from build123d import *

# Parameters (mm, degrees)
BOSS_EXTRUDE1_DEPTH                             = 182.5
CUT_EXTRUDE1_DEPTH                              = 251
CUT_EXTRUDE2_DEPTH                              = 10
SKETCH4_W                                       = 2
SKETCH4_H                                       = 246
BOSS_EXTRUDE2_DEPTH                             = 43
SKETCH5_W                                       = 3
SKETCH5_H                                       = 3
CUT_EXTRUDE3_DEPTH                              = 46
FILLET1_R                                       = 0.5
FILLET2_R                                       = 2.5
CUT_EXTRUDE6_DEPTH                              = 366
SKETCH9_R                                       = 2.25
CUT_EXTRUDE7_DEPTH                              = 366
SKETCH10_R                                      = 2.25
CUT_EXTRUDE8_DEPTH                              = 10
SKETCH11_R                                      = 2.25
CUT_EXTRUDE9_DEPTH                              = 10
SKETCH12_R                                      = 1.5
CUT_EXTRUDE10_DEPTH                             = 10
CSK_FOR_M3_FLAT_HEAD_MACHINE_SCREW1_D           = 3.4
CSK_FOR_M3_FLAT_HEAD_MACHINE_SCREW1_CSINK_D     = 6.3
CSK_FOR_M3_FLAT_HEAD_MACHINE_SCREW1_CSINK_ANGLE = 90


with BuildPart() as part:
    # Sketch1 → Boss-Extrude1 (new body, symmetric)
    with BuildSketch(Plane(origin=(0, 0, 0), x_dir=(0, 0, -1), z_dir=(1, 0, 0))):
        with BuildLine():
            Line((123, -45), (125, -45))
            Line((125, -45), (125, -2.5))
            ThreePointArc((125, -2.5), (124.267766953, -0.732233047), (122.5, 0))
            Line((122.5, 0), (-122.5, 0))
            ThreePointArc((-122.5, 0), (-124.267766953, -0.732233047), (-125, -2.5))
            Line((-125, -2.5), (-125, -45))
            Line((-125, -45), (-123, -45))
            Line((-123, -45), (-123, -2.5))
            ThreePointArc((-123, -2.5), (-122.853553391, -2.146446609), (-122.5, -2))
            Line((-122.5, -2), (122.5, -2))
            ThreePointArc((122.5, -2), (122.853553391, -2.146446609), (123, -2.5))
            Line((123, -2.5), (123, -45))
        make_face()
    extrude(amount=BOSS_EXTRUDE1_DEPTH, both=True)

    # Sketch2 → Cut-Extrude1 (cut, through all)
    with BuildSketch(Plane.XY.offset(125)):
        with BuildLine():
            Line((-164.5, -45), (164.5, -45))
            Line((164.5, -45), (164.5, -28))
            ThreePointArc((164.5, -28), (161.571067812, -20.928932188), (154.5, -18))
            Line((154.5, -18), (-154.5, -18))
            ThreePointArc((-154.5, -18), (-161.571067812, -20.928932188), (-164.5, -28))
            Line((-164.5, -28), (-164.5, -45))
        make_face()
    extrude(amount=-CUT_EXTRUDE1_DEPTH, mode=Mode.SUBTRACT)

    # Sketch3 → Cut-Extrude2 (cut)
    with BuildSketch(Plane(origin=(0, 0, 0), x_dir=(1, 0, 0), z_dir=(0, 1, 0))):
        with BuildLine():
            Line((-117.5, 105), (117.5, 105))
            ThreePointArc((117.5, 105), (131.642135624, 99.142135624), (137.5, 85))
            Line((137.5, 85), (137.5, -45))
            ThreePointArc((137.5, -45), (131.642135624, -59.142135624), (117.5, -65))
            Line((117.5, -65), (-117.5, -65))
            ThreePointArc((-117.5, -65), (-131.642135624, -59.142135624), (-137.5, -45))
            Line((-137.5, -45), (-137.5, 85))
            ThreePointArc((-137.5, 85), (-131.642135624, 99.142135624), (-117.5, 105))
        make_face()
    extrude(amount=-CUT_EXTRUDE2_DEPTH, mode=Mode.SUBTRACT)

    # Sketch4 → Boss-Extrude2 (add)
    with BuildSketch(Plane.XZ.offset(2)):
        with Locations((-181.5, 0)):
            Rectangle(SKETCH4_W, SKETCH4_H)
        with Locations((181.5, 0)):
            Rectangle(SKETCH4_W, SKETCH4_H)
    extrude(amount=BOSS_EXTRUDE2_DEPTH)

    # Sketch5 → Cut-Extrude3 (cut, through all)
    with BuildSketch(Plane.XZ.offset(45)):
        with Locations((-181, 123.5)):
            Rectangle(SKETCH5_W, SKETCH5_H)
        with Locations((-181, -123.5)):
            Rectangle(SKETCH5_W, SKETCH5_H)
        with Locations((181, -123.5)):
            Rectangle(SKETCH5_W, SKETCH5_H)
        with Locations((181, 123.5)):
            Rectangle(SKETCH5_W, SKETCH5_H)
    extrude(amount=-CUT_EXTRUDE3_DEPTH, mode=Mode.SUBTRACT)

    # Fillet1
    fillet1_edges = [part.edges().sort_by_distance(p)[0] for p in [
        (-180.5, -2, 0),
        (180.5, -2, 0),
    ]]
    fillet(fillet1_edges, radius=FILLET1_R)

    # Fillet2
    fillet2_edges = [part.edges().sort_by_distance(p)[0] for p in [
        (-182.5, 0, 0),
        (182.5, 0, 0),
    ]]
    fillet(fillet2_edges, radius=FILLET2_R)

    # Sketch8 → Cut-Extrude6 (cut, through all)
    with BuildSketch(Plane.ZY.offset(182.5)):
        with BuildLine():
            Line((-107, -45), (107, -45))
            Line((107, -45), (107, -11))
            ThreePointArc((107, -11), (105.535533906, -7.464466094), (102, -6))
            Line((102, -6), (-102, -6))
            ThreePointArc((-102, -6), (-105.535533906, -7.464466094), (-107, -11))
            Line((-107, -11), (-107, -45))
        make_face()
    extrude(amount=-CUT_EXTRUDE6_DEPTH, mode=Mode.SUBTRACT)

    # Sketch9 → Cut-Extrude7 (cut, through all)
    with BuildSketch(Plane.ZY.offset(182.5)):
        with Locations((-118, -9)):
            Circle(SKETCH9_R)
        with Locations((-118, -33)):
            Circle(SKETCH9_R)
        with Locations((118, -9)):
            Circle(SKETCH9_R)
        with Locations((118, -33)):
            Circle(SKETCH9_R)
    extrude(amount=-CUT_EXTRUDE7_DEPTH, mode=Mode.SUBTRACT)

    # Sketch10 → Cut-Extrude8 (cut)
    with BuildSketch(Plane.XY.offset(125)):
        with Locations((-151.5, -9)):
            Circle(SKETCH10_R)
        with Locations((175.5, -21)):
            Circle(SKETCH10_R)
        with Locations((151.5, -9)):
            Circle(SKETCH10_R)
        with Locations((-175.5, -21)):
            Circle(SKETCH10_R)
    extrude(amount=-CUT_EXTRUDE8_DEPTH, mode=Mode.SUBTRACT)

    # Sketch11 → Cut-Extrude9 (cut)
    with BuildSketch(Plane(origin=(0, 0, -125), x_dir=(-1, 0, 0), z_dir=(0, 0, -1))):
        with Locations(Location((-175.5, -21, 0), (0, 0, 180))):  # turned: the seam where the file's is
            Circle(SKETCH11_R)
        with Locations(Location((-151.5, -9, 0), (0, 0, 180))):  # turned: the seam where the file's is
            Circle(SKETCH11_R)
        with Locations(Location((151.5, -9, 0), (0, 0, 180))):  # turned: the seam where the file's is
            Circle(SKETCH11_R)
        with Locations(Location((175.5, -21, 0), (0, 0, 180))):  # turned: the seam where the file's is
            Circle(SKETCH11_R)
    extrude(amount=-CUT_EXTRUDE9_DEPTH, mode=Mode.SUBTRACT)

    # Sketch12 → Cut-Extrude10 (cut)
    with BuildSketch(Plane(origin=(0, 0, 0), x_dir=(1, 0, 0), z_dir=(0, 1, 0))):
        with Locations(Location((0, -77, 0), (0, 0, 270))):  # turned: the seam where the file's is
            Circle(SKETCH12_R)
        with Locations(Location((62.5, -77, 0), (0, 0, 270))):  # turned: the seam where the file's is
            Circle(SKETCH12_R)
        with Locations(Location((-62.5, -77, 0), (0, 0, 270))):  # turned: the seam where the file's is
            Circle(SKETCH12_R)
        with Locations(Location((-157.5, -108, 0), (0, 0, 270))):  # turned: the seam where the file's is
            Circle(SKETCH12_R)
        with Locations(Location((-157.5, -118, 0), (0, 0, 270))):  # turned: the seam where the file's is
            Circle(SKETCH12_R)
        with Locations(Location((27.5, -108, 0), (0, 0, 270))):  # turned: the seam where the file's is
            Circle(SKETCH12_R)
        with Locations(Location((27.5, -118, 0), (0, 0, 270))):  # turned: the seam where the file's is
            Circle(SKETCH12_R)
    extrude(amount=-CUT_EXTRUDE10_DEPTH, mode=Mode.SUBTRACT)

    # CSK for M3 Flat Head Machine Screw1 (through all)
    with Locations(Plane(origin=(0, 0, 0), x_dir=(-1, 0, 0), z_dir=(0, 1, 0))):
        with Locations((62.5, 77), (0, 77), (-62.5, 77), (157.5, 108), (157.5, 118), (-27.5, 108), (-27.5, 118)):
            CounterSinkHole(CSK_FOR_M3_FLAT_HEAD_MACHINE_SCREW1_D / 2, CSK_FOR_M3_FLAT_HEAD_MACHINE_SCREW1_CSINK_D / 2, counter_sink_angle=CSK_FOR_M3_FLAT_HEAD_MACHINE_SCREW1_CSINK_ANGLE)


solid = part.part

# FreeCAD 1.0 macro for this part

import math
import FreeCAD as App
import Part
import Sketcher
Q = App.Units.Quantity


def edges_at(feature, points):
    """Names of the edges that pass closest to the given points."""
    edges = feature.Shape.Edges
    near = lambda p: min(range(len(edges)), key=lambda i: edges[i].distToShape(Part.Vertex(*p))[0])
    return sorted({f"Edge{near(p) + 1}" for p in points})


def add_polygon(sketch, points):
    """Adds a closed chain of lines whose ends are joined by coincident constraints."""
    first, n = sketch.GeometryCount, len(points)
    for a, b in zip(points, points[1:] + points[:1]):
        sketch.addGeometry(Part.LineSegment(App.Vector(*a, 0), App.Vector(*b, 0)), False)
    for i in range(n):
        sketch.addConstraint(Sketcher.Constraint("Coincident", first + i, 2, first + (i + 1) % n, 1))

doc = App.newDocument("Part")
params = doc.addObject("Spreadsheet::Sheet", "Params")
for row, (alias, value) in enumerate([
    ("sketch1_radius", "2.5 mm"),
    ("sketch1_radius2", "0.5 mm"),
    ("sketch1_height", "245 mm"),
    ("sketch1_width", "42.5 mm"),
    ("pad1_length", "365 mm"),
    ("sketch2_radius", "10 mm"),
    ("sketch2_width", "329 mm"),
    ("sketch2_height", "17 mm"),
    ("sketch3_radius", "20 mm"),
    ("sketch3_width", "235 mm"),
    ("sketch3_height", "130 mm"),
    ("pocket2_length", "10 mm"),
    ("sketch4_width", "2 mm"),
    ("sketch4_height", "246 mm"),
    ("pad2_length", "43 mm"),
    ("sketch5_width", "3 mm"),
    ("fillet_radius", "0.5 mm"),
    ("fillet2_radius", "2.5 mm"),
    ("sketch6_radius", "5 mm"),
    ("sketch6_width", "34 mm"),
    ("sketch6_height", "214 mm"),
    ("sketch7_diameter", "4.5 mm"),
    ("sketch8_diameter", "4.5 mm"),
    ("pocket6_length", "10 mm"),
    ("sketch9_diameter", "4.5 mm"),
    ("pocket7_length", "10 mm"),
    ("sketch10_diameter", "3 mm"),
    ("pocket8_length", "10 mm"),
    ("sketch11_diameter", "3.4 mm"),
    ("hole_diameter", "3.4 mm"),
    ("hole_csink_diameter", "6.3 mm"),
], start=1):
    params.set(f"A{row}", alias)
    params.set(f"B{row}", "=" + value)
    params.setAlias(f"B{row}", alias)

body = doc.addObject("PartDesign::Body", "Body")

# Sketch on YZ plane
sketch1 = body.newObject("Sketcher::SketchObject", "Sketch")
sketch1.AttachmentSupport = (doc.getObject("YZ_Plane"), [""])
sketch1.MapMode = "FlatFace"
sketch1.addGeometry([
    Part.LineSegment(App.Vector(-45, -123, 0), App.Vector(-45, -125, 0)),  # 0
    Part.LineSegment(App.Vector(-45, -125, 0), App.Vector(-2.5, -125, 0)),  # 1
    Part.ArcOfCircle(Part.Circle(App.Vector(-2.5, -122.5, 0), App.Vector(0, 0, 1), 2.5), math.radians(-90), math.radians(0)),  # 2
    Part.LineSegment(App.Vector(0, -122.5, 0), App.Vector(0, 122.5, 0)),  # 3
    Part.ArcOfCircle(Part.Circle(App.Vector(-2.5, 122.5, 0), App.Vector(0, 0, 1), 2.5), math.radians(0), math.radians(90)),  # 4
    Part.LineSegment(App.Vector(-2.5, 125, 0), App.Vector(-45, 125, 0)),  # 5
    Part.LineSegment(App.Vector(-45, 125, 0), App.Vector(-45, 123, 0)),  # 6
    Part.LineSegment(App.Vector(-45, 123, 0), App.Vector(-2.5, 123, 0)),  # 7
    Part.ArcOfCircle(Part.Circle(App.Vector(-2.5, 122.5, 0), App.Vector(0, 0, 1), 0.5), math.radians(0), math.radians(90)),  # 8
    Part.LineSegment(App.Vector(-2, 122.5, 0), App.Vector(-2, -122.5, 0)),  # 9
    Part.ArcOfCircle(Part.Circle(App.Vector(-2.5, -122.5, 0), App.Vector(0, 0, 1), 0.5), math.radians(-90), math.radians(0)),  # 10
    Part.LineSegment(App.Vector(-2.5, -123, 0), App.Vector(-45, -123, 0)),  # 11
], False)
sketch1.addConstraint([
    Sketcher.Constraint("Coincident", 0, 2, 1, 1),
    Sketcher.Constraint("Tangent", 1, 2, 2, 1),
    Sketcher.Constraint("Tangent", 2, 2, 3, 1),
    Sketcher.Constraint("Tangent", 3, 2, 4, 1),
    Sketcher.Constraint("Tangent", 4, 2, 5, 1),
    Sketcher.Constraint("Coincident", 5, 2, 6, 1),
    Sketcher.Constraint("Coincident", 6, 2, 7, 1),
    Sketcher.Constraint("Tangent", 7, 2, 8, 2),
    Sketcher.Constraint("Tangent", 8, 1, 9, 1),
    Sketcher.Constraint("Tangent", 9, 2, 10, 2),
    Sketcher.Constraint("Tangent", 10, 1, 11, 1),
    Sketcher.Constraint("Coincident", 11, 2, 0, 1),
    Sketcher.Constraint("Vertical", 0),
    Sketcher.Constraint("Horizontal", 1),
    Sketcher.Constraint("Vertical", 3),
    Sketcher.Constraint("Horizontal", 5),
    Sketcher.Constraint("Vertical", 6),
    Sketcher.Constraint("Horizontal", 7),
    Sketcher.Constraint("Vertical", 9),
    Sketcher.Constraint("Horizontal", 11),
    Sketcher.Constraint("Coincident", 8, 3, 4, 3),
    Sketcher.Constraint("Coincident", 10, 3, 2, 3),
    Sketcher.Constraint("Equal", 2, 4),
    Sketcher.Constraint("Symmetric", 2, 2, 3, 2, -1, 1),
    Sketcher.Constraint("Vertical", 0, 2, 5, 2),
    Sketcher.Constraint("Radius", 2, Q("2.5 mm")),
    Sketcher.Constraint("Radius", 8, Q("0.5 mm")),
    Sketcher.Constraint("DistanceY", 3, 1, 3, 2, Q("245 mm")),
    Sketcher.Constraint("DistanceX", 1, 1, 1, 2, Q("42.5 mm")),
])
sketch1.setExpression("Constraints[25]", "Params.sketch1_radius")
sketch1.setExpression("Constraints[26]", "Params.sketch1_radius2")
sketch1.setExpression("Constraints[27]", "Params.sketch1_height")
sketch1.setExpression("Constraints[28]", "Params.sketch1_width")
pad1 = body.newObject("PartDesign::Pad", "Pad")
pad1.Profile = sketch1
pad1.setExpression("Length", "Params.pad1_length")
pad1.Midplane = True

# Sketch on XY plane
sketch2 = body.newObject("Sketcher::SketchObject", "Sketch001")
sketch2.AttachmentSupport = (doc.getObject("XY_Plane"), [""])
sketch2.MapMode = "FlatFace"
sketch2.AttachmentOffset = App.Placement(App.Vector(0, 0, 125), App.Rotation())
sketch2.addGeometry([
    Part.LineSegment(App.Vector(-164, -45, 0), App.Vector(164, -45, 0)),  # 0
    Part.LineSegment(App.Vector(164, -45, 0), App.Vector(164, -28, 0)),  # 1
    Part.ArcOfCircle(Part.Circle(App.Vector(154, -28, 0), App.Vector(0, 0, 1), 10), math.radians(0), math.radians(90)),  # 2
    Part.LineSegment(App.Vector(154, -18, 0), App.Vector(-154, -18, 0)),  # 3
    Part.ArcOfCircle(Part.Circle(App.Vector(-154, -28, 0), App.Vector(0, 0, 1), 10), math.radians(90), math.radians(180)),  # 4
    Part.LineSegment(App.Vector(-164, -28, 0), App.Vector(-164, -45, 0)),  # 5
], False)
sketch2.addConstraint([
    Sketcher.Constraint("Coincident", 0, 2, 1, 1),
    Sketcher.Constraint("Tangent", 1, 2, 2, 1),
    Sketcher.Constraint("Tangent", 2, 2, 3, 1),
    Sketcher.Constraint("Tangent", 3, 2, 4, 1),
    Sketcher.Constraint("Tangent", 4, 2, 5, 1),
    Sketcher.Constraint("Coincident", 5, 2, 0, 1),
    Sketcher.Constraint("Horizontal", 0),
    Sketcher.Constraint("Vertical", 1),
    Sketcher.Constraint("Horizontal", 3),
    Sketcher.Constraint("Vertical", 5),
    Sketcher.Constraint("Equal", 2, 4),
    Sketcher.Constraint("Radius", 2, Q("10 mm")),
    Sketcher.Constraint("DistanceX", 0, 1, 0, 2, Q("329 mm")),
    Sketcher.Constraint("DistanceY", 1, 1, 1, 2, Q("17 mm")),
    Sketcher.Constraint("DistanceY", 2, 3, -1, 1, Q("28 mm")),
    Sketcher.Constraint("DistanceX", -1, 1, 2, 3, Q("154.5 mm")),
])
sketch2.setExpression("Constraints[11]", "Params.sketch2_radius")
sketch2.setExpression("Constraints[12]", "Params.sketch2_width")
sketch2.setExpression("Constraints[13]", "Params.sketch2_height")
pocket1 = body.newObject("PartDesign::Pocket", "Pocket")
pocket1.Profile = sketch2
pocket1.Type = "ThroughAll"

# Sketch on XZ plane
sketch3 = body.newObject("Sketcher::SketchObject", "Sketch002")
sketch3.AttachmentSupport = (doc.getObject("XZ_Plane"), [""])
sketch3.MapMode = "FlatFace"
sketch3.addGeometry([
    Part.LineSegment(App.Vector(118, -105, 0), App.Vector(-118, -105, 0)),  # 0
    Part.ArcOfCircle(Part.Circle(App.Vector(-118, -85, 0), App.Vector(0, 0, 1), 20), math.radians(180), math.radians(270)),  # 1
    Part.LineSegment(App.Vector(-138, -85, 0), App.Vector(-138, 45, 0)),  # 2
    Part.ArcOfCircle(Part.Circle(App.Vector(-118, 45, 0), App.Vector(0, 0, 1), 20), math.radians(90), math.radians(180)),  # 3
    Part.LineSegment(App.Vector(-118, 65, 0), App.Vector(118, 65, 0)),  # 4
    Part.ArcOfCircle(Part.Circle(App.Vector(118, 45, 0), App.Vector(0, 0, 1), 20), math.radians(0), math.radians(90)),  # 5
    Part.LineSegment(App.Vector(138, 45, 0), App.Vector(138, -85, 0)),  # 6
    Part.ArcOfCircle(Part.Circle(App.Vector(118, -85, 0), App.Vector(0, 0, 1), 20), math.radians(-90), math.radians(0)),  # 7
], False)
sketch3.addConstraint([
    Sketcher.Constraint("Tangent", 0, 2, 1, 2),
    Sketcher.Constraint("Tangent", 1, 1, 2, 1),
    Sketcher.Constraint("Tangent", 2, 2, 3, 2),
    Sketcher.Constraint("Tangent", 3, 1, 4, 1),
    Sketcher.Constraint("Tangent", 4, 2, 5, 2),
    Sketcher.Constraint("Tangent", 5, 1, 6, 1),
    Sketcher.Constraint("Tangent", 6, 2, 7, 2),
    Sketcher.Constraint("Tangent", 7, 1, 0, 1),
    Sketcher.Constraint("Horizontal", 0),
    Sketcher.Constraint("Vertical", 2),
    Sketcher.Constraint("Horizontal", 4),
    Sketcher.Constraint("Vertical", 6),
    Sketcher.Constraint("Equal", 1, 3),
    Sketcher.Constraint("Equal", 3, 5),
    Sketcher.Constraint("Equal", 5, 7),
    Sketcher.Constraint("Radius", 1, Q("20 mm")),
    Sketcher.Constraint("DistanceX", 0, 2, 0, 1, Q("235 mm")),
    Sketcher.Constraint("DistanceY", 2, 1, 2, 2, Q("130 mm")),
    Sketcher.Constraint("DistanceY", 1, 3, -1, 1, Q("85 mm")),
    Sketcher.Constraint("DistanceX", 1, 3, -1, 1, Q("117.5 mm")),
])
sketch3.setExpression("Constraints[15]", "Params.sketch3_radius")
sketch3.setExpression("Constraints[16]", "Params.sketch3_width")
sketch3.setExpression("Constraints[17]", "Params.sketch3_height")
pocket2 = body.newObject("PartDesign::Pocket", "Pocket001")
pocket2.Profile = sketch3
pocket2.setExpression("Length", "Params.pocket2_length")
pocket2.Reversed = True

# Sketch on XZ plane
sketch4 = body.newObject("Sketcher::SketchObject", "Sketch003")
sketch4.AttachmentSupport = (doc.getObject("XZ_Plane"), [""])
sketch4.MapMode = "FlatFace"
sketch4.AttachmentOffset = App.Placement(App.Vector(0, 0, 2), App.Rotation())
add_polygon(sketch4, [(-182.5, 123), (-182.5, -123), (-180.5, -123), (-180.5, 123)])  # lines 0-3
add_polygon(sketch4, [(180.5, 123), (180.5, -123), (182.5, -123), (182.5, 123)])  # lines 4-7
sketch4.addConstraint([
    Sketcher.Constraint("Vertical", 0),
    Sketcher.Constraint("Horizontal", 1),
    Sketcher.Constraint("Vertical", 2),
    Sketcher.Constraint("Horizontal", 3),
    Sketcher.Constraint("Vertical", 4),
    Sketcher.Constraint("Horizontal", 5),
    Sketcher.Constraint("Vertical", 6),
    Sketcher.Constraint("Horizontal", 7),
    Sketcher.Constraint("Symmetric", 2, 2, 4, 2, -1, 1),
    Sketcher.Constraint("Symmetric", 0, 2, 6, 2, -1, 1),
    Sketcher.Constraint("Horizontal", 1, 2, 4, 2),
    Sketcher.Constraint("DistanceX", 1, 1, 1, 2, Q("2 mm")),
    Sketcher.Constraint("DistanceY", 0, 2, 0, 1, Q("246 mm")),
    Sketcher.Constraint("DistanceX", 1, 2, 4, 2, Q("361 mm")),
])
sketch4.setExpression("Constraints[19]", "Params.sketch4_width")
sketch4.setExpression("Constraints[20]", "Params.sketch4_height")
pad2 = body.newObject("PartDesign::Pad", "Pad001")
pad2.Profile = sketch4
pad2.setExpression("Length", "Params.pad2_length")

# Sketch on XZ plane
sketch5 = body.newObject("Sketcher::SketchObject", "Sketch004")
sketch5.AttachmentSupport = (doc.getObject("XZ_Plane"), [""])
sketch5.MapMode = "FlatFace"
sketch5.AttachmentOffset = App.Placement(App.Vector(0, 0, 45), App.Rotation())
add_polygon(sketch5, [(-182.5, 125), (-182.5, 122), (-179.5, 122), (-179.5, 125)])  # lines 0-3
add_polygon(sketch5, [(-182.5, -122), (-182.5, -125), (-179.5, -125), (-179.5, -122)])  # lines 4-7
add_polygon(sketch5, [(179.5, -122), (179.5, -125), (182.5, -125), (182.5, -122)])  # lines 8-11
add_polygon(sketch5, [(179.5, 125), (179.5, 122), (182.5, 122), (182.5, 125)])  # lines 12-15
sketch5.addConstraint([
    Sketcher.Constraint("Vertical", 0),
    Sketcher.Constraint("Horizontal", 1),
    Sketcher.Constraint("Vertical", 2),
    Sketcher.Constraint("Horizontal", 3),
    Sketcher.Constraint("Vertical", 4),
    Sketcher.Constraint("Horizontal", 5),
    Sketcher.Constraint("Vertical", 6),
    Sketcher.Constraint("Horizontal", 7),
    Sketcher.Constraint("Vertical", 8),
    Sketcher.Constraint("Horizontal", 9),
    Sketcher.Constraint("Vertical", 10),
    Sketcher.Constraint("Horizontal", 11),
    Sketcher.Constraint("Vertical", 12),
    Sketcher.Constraint("Horizontal", 13),
    Sketcher.Constraint("Vertical", 14),
    Sketcher.Constraint("Horizontal", 15),
    Sketcher.Constraint("Symmetric", 2, 2, 8, 2, -1, 1),
    Sketcher.Constraint("Symmetric", 0, 2, 10, 2, -1, 1),
    Sketcher.Constraint("Symmetric", 6, 2, 12, 2, -1, 1),
    Sketcher.Constraint("Symmetric", 4, 2, 14, 2, -1, 1),
    Sketcher.Constraint("Symmetric", 5, 2, 8, 2, -2),
    Sketcher.Constraint("Symmetric", 7, 2, 10, 2, -2),
    Sketcher.Constraint("Equal", 15, 0),
    Sketcher.Constraint("DistanceX", 1, 1, 1, 2, Q("3 mm")),
    Sketcher.Constraint("DistanceY", -1, 1, 0, 2, Q("122 mm")),
    Sketcher.Constraint("DistanceX", 5, 2, 8, 2, Q("359 mm")),
])
sketch5.setExpression("Constraints[39]", "Params.sketch5_width")
pocket3 = body.newObject("PartDesign::Pocket", "Pocket002")
pocket3.Profile = sketch5
pocket3.Type = "ThroughAll"
doc.recompute()

fillet = body.newObject("PartDesign::Fillet", "Fillet")
fillet.Base = (pocket3, edges_at(pocket3, [(-180.5, -2, 0), (180.5, -2, 0)]))
fillet.setExpression("Radius", "Params.fillet_radius")
doc.recompute()

fillet2 = body.newObject("PartDesign::Fillet", "Fillet001")
fillet2.Base = (fillet, edges_at(fillet, [(-182.5, 0, 0), (182.5, 0, 0)]))
fillet2.setExpression("Radius", "Params.fillet2_radius")

# Sketch on YZ plane
sketch6 = body.newObject("Sketcher::SketchObject", "Sketch005")
sketch6.AttachmentSupport = (doc.getObject("YZ_Plane"), [""])
sketch6.MapMode = "FlatFace"
sketch6.AttachmentOffset = App.Placement(App.Vector(0, 0, -182.5), App.Rotation())
sketch6.addGeometry([
    Part.LineSegment(App.Vector(-45, -107, 0), App.Vector(-45, 107, 0)),  # 0
    Part.LineSegment(App.Vector(-45, 107, 0), App.Vector(-11, 107, 0)),  # 1
    Part.ArcOfCircle(Part.Circle(App.Vector(-11, 102, 0), App.Vector(0, 0, 1), 5), math.radians(0), math.radians(90)),  # 2
    Part.LineSegment(App.Vector(-6, 102, 0), App.Vector(-6, -102, 0)),  # 3
    Part.ArcOfCircle(Part.Circle(App.Vector(-11, -102, 0), App.Vector(0, 0, 1), 5), math.radians(-90), math.radians(0)),  # 4
    Part.LineSegment(App.Vector(-11, -107, 0), App.Vector(-45, -107, 0)),  # 5
], False)
sketch6.addConstraint([
    Sketcher.Constraint("Coincident", 0, 2, 1, 1),
    Sketcher.Constraint("Tangent", 1, 2, 2, 2),
    Sketcher.Constraint("Tangent", 2, 1, 3, 1),
    Sketcher.Constraint("Tangent", 3, 2, 4, 2),
    Sketcher.Constraint("Tangent", 4, 1, 5, 1),
    Sketcher.Constraint("Coincident", 5, 2, 0, 1),
    Sketcher.Constraint("Vertical", 0),
    Sketcher.Constraint("Horizontal", 1),
    Sketcher.Constraint("Vertical", 3),
    Sketcher.Constraint("Horizontal", 5),
    Sketcher.Constraint("Equal", 2, 4),
    Sketcher.Constraint("Radius", 2, Q("5 mm")),
    Sketcher.Constraint("DistanceX", 1, 1, 1, 2, Q("34 mm")),
    Sketcher.Constraint("DistanceY", 0, 1, 0, 2, Q("214 mm")),
    Sketcher.Constraint("DistanceX", 2, 3, -1, 1, Q("11 mm")),
    Sketcher.Constraint("DistanceY", -1, 1, 2, 3, Q("102 mm")),
])
sketch6.setExpression("Constraints[11]", "Params.sketch6_radius")
sketch6.setExpression("Constraints[12]", "Params.sketch6_width")
sketch6.setExpression("Constraints[13]", "Params.sketch6_height")
pocket4 = body.newObject("PartDesign::Pocket", "Pocket003")
pocket4.Profile = sketch6
pocket4.Type = "ThroughAll"
pocket4.Reversed = True

# Sketch on YZ plane
sketch7 = body.newObject("Sketcher::SketchObject", "Sketch006")
sketch7.AttachmentSupport = (doc.getObject("YZ_Plane"), [""])
sketch7.MapMode = "FlatFace"
sketch7.AttachmentOffset = App.Placement(App.Vector(0, 0, -182.5), App.Rotation())
sketch7.addGeometry([
    Part.Circle(App.Vector(-9, -118, 0), App.Vector(0, 0, 1), 2.2),
    Part.Circle(App.Vector(-33, -118, 0), App.Vector(0, 0, 1), 2.2),
    Part.Circle(App.Vector(-9, 118, 0), App.Vector(0, 0, 1), 2.2),
    Part.Circle(App.Vector(-33, 118, 0), App.Vector(0, 0, 1), 2.2),
], False)
sketch7.addConstraint([
    Sketcher.Constraint("Equal", 0, 1),
    Sketcher.Constraint("Equal", 1, 2),
    Sketcher.Constraint("Equal", 2, 3),
    Sketcher.Constraint("Symmetric", 0, 3, 2, 3, -1),
    Sketcher.Constraint("Symmetric", 1, 3, 3, 3, -1),
    Sketcher.Constraint("Horizontal", 0, 3, 1, 3),
    Sketcher.Constraint("Diameter", 0, Q("4.5 mm")),
    Sketcher.Constraint("DistanceX", 0, 3, -1, 1, Q("9 mm")),
    Sketcher.Constraint("DistanceY", 0, 3, -1, 1, Q("118 mm")),
    Sketcher.Constraint("DistanceX", 1, 3, -1, 1, Q("33 mm")),
])
sketch7.setExpression("Constraints[6]", "Params.sketch7_diameter")
pocket5 = body.newObject("PartDesign::Pocket", "Pocket004")
pocket5.Profile = sketch7
pocket5.Type = "ThroughAll"
pocket5.Reversed = True

# Sketch on XY plane
sketch8 = body.newObject("Sketcher::SketchObject", "Sketch007")
sketch8.AttachmentSupport = (doc.getObject("XY_Plane"), [""])
sketch8.MapMode = "FlatFace"
sketch8.AttachmentOffset = App.Placement(App.Vector(0, 0, 125), App.Rotation())
sketch8.addGeometry([
    Part.Circle(App.Vector(-151.5, -9, 0), App.Vector(0, 0, 1), 2.2),
    Part.Circle(App.Vector(175.5, -21, 0), App.Vector(0, 0, 1), 2.2),
    Part.Circle(App.Vector(151.5, -9, 0), App.Vector(0, 0, 1), 2.2),
    Part.Circle(App.Vector(-175.5, -21, 0), App.Vector(0, 0, 1), 2.2),
], False)
sketch8.addConstraint([
    Sketcher.Constraint("Equal", 0, 1),
    Sketcher.Constraint("Equal", 1, 2),
    Sketcher.Constraint("Equal", 2, 3),
    Sketcher.Constraint("Symmetric", 0, 3, 2, 3, -2),
    Sketcher.Constraint("Symmetric", 1, 3, 3, 3, -2),
    Sketcher.Constraint("Diameter", 0, Q("4.5 mm")),
    Sketcher.Constraint("DistanceY", 0, 3, -1, 1, Q("9 mm")),
    Sketcher.Constraint("DistanceY", 1, 3, -1, 1, Q("21 mm")),
    Sketcher.Constraint("DistanceX", 0, 3, 1, 3, Q("327 mm")),
    Sketcher.Constraint("DistanceX", 2, 3, 1, 3, Q("24 mm")),
])
sketch8.setExpression("Constraints[5]", "Params.sketch8_diameter")
pocket6 = body.newObject("PartDesign::Pocket", "Pocket005")
pocket6.Profile = sketch8
pocket6.setExpression("Length", "Params.pocket6_length")

# Sketch on XY plane
sketch9 = body.newObject("Sketcher::SketchObject", "Sketch008")
sketch9.AttachmentSupport = (doc.getObject("XY_Plane"), [""])
sketch9.MapMode = "FlatFace"
sketch9.AttachmentOffset = App.Placement(App.Vector(0, 0, -125), App.Rotation())
sketch9.addGeometry([
    Part.Circle(App.Vector(175.5, -21, 0), App.Vector(0, 0, 1), 2.2),
    Part.Circle(App.Vector(151.5, -9, 0), App.Vector(0, 0, 1), 2.2),
    Part.Circle(App.Vector(-151.5, -9, 0), App.Vector(0, 0, 1), 2.2),
    Part.Circle(App.Vector(-175.5, -21, 0), App.Vector(0, 0, 1), 2.2),
], False)
sketch9.addConstraint([
    Sketcher.Constraint("Equal", 0, 1),
    Sketcher.Constraint("Equal", 1, 2),
    Sketcher.Constraint("Equal", 2, 3),
    Sketcher.Constraint("Symmetric", 1, 3, 2, 3, -2),
    Sketcher.Constraint("Symmetric", 0, 3, 3, 3, -2),
    Sketcher.Constraint("Diameter", 0, Q("4.5 mm")),
    Sketcher.Constraint("DistanceY", 0, 3, -1, 1, Q("21 mm")),
    Sketcher.Constraint("DistanceY", 1, 3, -1, 1, Q("9 mm")),
    Sketcher.Constraint("DistanceX", 1, 3, 0, 3, Q("24 mm")),
    Sketcher.Constraint("DistanceX", 2, 3, 1, 3, Q("303 mm")),
])
sketch9.setExpression("Constraints[5]", "Params.sketch9_diameter")
pocket7 = body.newObject("PartDesign::Pocket", "Pocket006")
pocket7.Profile = sketch9
pocket7.setExpression("Length", "Params.pocket7_length")
pocket7.Reversed = True

# Sketch on XZ plane
sketch10 = body.newObject("Sketcher::SketchObject", "Sketch009")
sketch10.AttachmentSupport = (doc.getObject("XZ_Plane"), [""])
sketch10.MapMode = "FlatFace"
sketch10.addGeometry([
    Part.Circle(App.Vector(0, 77, 0), App.Vector(0, 0, 1), 1.5),  # 0
    Part.Circle(App.Vector(62.5, 77, 0), App.Vector(0, 0, 1), 1.5),  # 1
    Part.Circle(App.Vector(-62.5, 77, 0), App.Vector(0, 0, 1), 1.5),  # 2
    Part.Circle(App.Vector(-157.5, 108, 0), App.Vector(0, 0, 1), 1.5),  # 3
    Part.Circle(App.Vector(-157.5, 118, 0), App.Vector(0, 0, 1), 1.5),  # 4
    Part.Circle(App.Vector(27.5, 108, 0), App.Vector(0, 0, 1), 1.5),  # 5
    Part.Circle(App.Vector(27.5, 118, 0), App.Vector(0, 0, 1), 1.5),  # 6
], False)
sketch10.addConstraint([
    Sketcher.Constraint("Equal", 0, 1),
    Sketcher.Constraint("Equal", 1, 2),
    Sketcher.Constraint("Equal", 2, 3),
    Sketcher.Constraint("Equal", 3, 4),
    Sketcher.Constraint("Equal", 4, 5),
    Sketcher.Constraint("Equal", 5, 6),
    Sketcher.Constraint("Symmetric", 1, 3, 2, 3, -2),
    Sketcher.Constraint("PointOnObject", 0, 3, -2),
    Sketcher.Constraint("Horizontal", 0, 3, 1, 3),
    Sketcher.Constraint("Horizontal", 3, 3, 5, 3),
    Sketcher.Constraint("Horizontal", 4, 3, 6, 3),
    Sketcher.Constraint("Vertical", 3, 3, 4, 3),
    Sketcher.Constraint("Vertical", 5, 3, 6, 3),
    Sketcher.Constraint("Diameter", 0, Q("3 mm")),
    Sketcher.Constraint("DistanceY", -1, 1, 0, 3, Q("77 mm")),
    Sketcher.Constraint("DistanceY", -1, 1, 3, 3, Q("108 mm")),
    Sketcher.Constraint("DistanceY", -1, 1, 4, 3, Q("118 mm")),
    Sketcher.Constraint("DistanceX", 2, 3, 1, 3, Q("125 mm")),
    Sketcher.Constraint("DistanceX", 3, 3, 2, 3, Q("95 mm")),
    Sketcher.Constraint("DistanceX", 5, 3, 1, 3, Q("35 mm")),
])
sketch10.setExpression("Constraints[13]", "Params.sketch10_diameter")
pocket8 = body.newObject("PartDesign::Pocket", "Pocket007")
pocket8.Profile = sketch10
pocket8.setExpression("Length", "Params.pocket8_length")
pocket8.Reversed = True

# Sketch on XZ plane
sketch11 = body.newObject("Sketcher::SketchObject", "Sketch010")
sketch11.AttachmentSupport = (doc.getObject("XZ_Plane"), [""])
sketch11.MapMode = "FlatFace"
sketch11.addGeometry([
    Part.Circle(App.Vector(-62.5, 77, 0), App.Vector(0, 0, 1), 1.7),  # 0
    Part.Circle(App.Vector(0, 77, 0), App.Vector(0, 0, 1), 1.7),  # 1
    Part.Circle(App.Vector(62.5, 77, 0), App.Vector(0, 0, 1), 1.7),  # 2
    Part.Circle(App.Vector(-157.5, 108, 0), App.Vector(0, 0, 1), 1.7),  # 3
    Part.Circle(App.Vector(-157.5, 118, 0), App.Vector(0, 0, 1), 1.7),  # 4
    Part.Circle(App.Vector(27.5, 108, 0), App.Vector(0, 0, 1), 1.7),  # 5
    Part.Circle(App.Vector(27.5, 118, 0), App.Vector(0, 0, 1), 1.7),  # 6
], False)
sketch11.addConstraint([
    Sketcher.Constraint("Equal", 0, 1),
    Sketcher.Constraint("Equal", 1, 2),
    Sketcher.Constraint("Equal", 2, 3),
    Sketcher.Constraint("Equal", 3, 4),
    Sketcher.Constraint("Equal", 4, 5),
    Sketcher.Constraint("Equal", 5, 6),
    Sketcher.Constraint("Symmetric", 0, 3, 2, 3, -2),
    Sketcher.Constraint("PointOnObject", 1, 3, -2),
    Sketcher.Constraint("Horizontal", 0, 3, 1, 3),
    Sketcher.Constraint("Horizontal", 3, 3, 5, 3),
    Sketcher.Constraint("Horizontal", 4, 3, 6, 3),
    Sketcher.Constraint("Vertical", 3, 3, 4, 3),
    Sketcher.Constraint("Vertical", 5, 3, 6, 3),
    Sketcher.Constraint("Diameter", 0, Q("3.4 mm")),
    Sketcher.Constraint("DistanceY", -1, 1, 0, 3, Q("77 mm")),
    Sketcher.Constraint("DistanceY", -1, 1, 3, 3, Q("108 mm")),
    Sketcher.Constraint("DistanceY", -1, 1, 4, 3, Q("118 mm")),
    Sketcher.Constraint("DistanceX", 0, 3, 2, 3, Q("125 mm")),
    Sketcher.Constraint("DistanceX", 3, 3, 0, 3, Q("95 mm")),
    Sketcher.Constraint("DistanceX", 5, 3, 2, 3, Q("35 mm")),
])
sketch11.setExpression("Constraints[13]", "Params.sketch11_diameter")
doc.recompute()
hole = body.newObject("PartDesign::Hole", "Hole")
hole.Profile = sketch11
hole.ThreadType = "None"
hole.setExpression("Diameter", "Params.hole_diameter")
hole.DepthType = "ThroughAll"
hole.HoleCutType = "Countersink"
hole.setExpression("HoleCutDiameter", "Params.hole_csink_diameter")
hole.HoleCutCountersinkAngle = 90
hole.Reversed = True

doc.recompute()
